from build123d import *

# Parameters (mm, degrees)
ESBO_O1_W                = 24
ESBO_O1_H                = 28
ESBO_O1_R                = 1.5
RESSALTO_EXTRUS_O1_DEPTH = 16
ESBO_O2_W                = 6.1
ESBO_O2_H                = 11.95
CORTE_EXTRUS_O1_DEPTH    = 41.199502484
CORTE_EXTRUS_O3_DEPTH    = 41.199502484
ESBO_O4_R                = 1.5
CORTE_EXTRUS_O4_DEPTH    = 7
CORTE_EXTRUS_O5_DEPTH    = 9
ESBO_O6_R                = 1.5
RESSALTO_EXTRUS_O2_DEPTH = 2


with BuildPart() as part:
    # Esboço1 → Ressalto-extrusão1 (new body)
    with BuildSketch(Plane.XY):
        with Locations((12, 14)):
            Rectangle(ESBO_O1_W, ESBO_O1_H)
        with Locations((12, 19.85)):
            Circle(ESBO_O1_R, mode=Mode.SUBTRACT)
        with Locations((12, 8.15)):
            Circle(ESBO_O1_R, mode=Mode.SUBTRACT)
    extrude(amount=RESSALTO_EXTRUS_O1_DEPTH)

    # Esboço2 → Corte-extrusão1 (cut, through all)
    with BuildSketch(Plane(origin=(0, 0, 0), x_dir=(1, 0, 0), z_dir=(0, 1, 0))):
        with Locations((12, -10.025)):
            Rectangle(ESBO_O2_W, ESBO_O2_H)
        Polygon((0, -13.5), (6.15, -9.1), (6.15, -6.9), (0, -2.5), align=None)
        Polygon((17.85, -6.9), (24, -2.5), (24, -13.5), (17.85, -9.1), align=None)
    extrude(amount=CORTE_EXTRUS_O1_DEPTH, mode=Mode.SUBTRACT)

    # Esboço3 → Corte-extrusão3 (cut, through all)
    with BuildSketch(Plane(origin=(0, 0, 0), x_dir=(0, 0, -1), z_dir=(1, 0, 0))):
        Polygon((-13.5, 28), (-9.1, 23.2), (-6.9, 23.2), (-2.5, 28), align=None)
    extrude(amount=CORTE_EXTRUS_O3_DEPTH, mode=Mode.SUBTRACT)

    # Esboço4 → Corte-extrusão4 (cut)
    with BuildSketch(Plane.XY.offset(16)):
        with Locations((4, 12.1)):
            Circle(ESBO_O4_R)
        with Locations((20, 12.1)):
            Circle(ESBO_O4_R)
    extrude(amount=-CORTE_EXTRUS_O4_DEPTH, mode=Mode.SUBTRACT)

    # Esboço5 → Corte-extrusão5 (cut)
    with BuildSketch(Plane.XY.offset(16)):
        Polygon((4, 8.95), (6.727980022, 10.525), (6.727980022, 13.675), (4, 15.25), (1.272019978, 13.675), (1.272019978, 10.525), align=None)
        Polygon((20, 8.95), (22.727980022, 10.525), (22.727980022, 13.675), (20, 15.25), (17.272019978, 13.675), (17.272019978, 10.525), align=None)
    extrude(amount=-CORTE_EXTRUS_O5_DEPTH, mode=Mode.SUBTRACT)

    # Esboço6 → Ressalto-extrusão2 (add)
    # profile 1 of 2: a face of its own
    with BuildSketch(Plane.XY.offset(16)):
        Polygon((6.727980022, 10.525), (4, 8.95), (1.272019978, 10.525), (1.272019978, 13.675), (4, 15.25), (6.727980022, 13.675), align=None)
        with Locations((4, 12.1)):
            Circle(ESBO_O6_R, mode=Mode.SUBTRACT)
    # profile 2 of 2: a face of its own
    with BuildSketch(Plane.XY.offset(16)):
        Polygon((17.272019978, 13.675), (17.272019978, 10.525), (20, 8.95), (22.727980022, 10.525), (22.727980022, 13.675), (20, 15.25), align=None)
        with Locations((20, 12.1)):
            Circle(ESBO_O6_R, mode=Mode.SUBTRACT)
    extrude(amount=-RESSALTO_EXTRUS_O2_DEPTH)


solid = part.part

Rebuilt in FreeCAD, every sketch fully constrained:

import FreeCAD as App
import Part
import Sketcher
Q = App.Units.Quantity

doc = App.newDocument("Part")
params = doc.addObject("Spreadsheet::Sheet", "Params")
for row, (alias, value) in enumerate([
    ("sketch1_diameter", "3 mm"),
    ("sketch1_width", "24 mm"),
    ("sketch1_height", "28 mm"),
    ("pad1_length", "16 mm"),
    ("sketch2_height", "11 mm"),
    ("sketch2_width", "6.1 mm"),
    ("sketch2_height2", "2.2 mm"),
    ("sketch2_height3", "11.95 mm"),
    ("sketch3_height", "11 mm"),
    ("sketch3_height2", "2.2 mm"),
    ("sketch4_diameter", "3 mm"),
    ("pocket3_length", "7 mm"),
    ("sketch5_height", "3.15 mm"),
    ("pocket4_length", "9 mm"),
    ("sketch6_diameter", "3 mm"),
    ("sketch6_height", "3.15 mm"),
    ("pad2_length", "2 mm"),
], start=1):
    params.set(f"A{row}", alias)
    params.set(f"B{row}", "=" + value)
    params.setAlias(f"B{row}", alias)

body = doc.addObject("PartDesign::Body", "Body")

# Sketch on XY plane
sketch1 = body.newObject("Sketcher::SketchObject", "Sketch")
sketch1.AttachmentSupport = (doc.getObject("XY_Plane"), [""])
sketch1.MapMode = "FlatFace"
sketch1.addGeometry([
    Part.LineSegment(App.Vector(0, 28, 0), App.Vector(0, 0, 0)),  # 0
    Part.LineSegment(App.Vector(0, 0, 0), App.Vector(24, 0, 0)),  # 1
    Part.LineSegment(App.Vector(24, 0, 0), App.Vector(24, 28, 0)),  # 2
    Part.LineSegment(App.Vector(24, 28, 0), App.Vector(0, 28, 0)),  # 3
    Part.Circle(App.Vector(12, 8.2, 0), App.Vector(0, 0, 1), 1.5),  # 4
    Part.Circle(App.Vector(12, 19.9, 0), App.Vector(0, 0, 1), 1.5),  # 5
], False)
sketch1.addConstraint([
    Sketcher.Constraint("Coincident", 0, 2, 1, 1),
    Sketcher.Constraint("Coincident", 1, 2, 2, 1),
    Sketcher.Constraint("Coincident", 2, 2, 3, 1),
    Sketcher.Constraint("Coincident", 3, 2, 0, 1),
    Sketcher.Constraint("Vertical", 0),
    Sketcher.Constraint("Horizontal", 1),
    Sketcher.Constraint("Vertical", 2),
    Sketcher.Constraint("Horizontal", 3),
    Sketcher.Constraint("Coincident", 0, 2, -1, 1),
    Sketcher.Constraint("Equal", 4, 5),
    Sketcher.Constraint("Vertical", 4, 3, 5, 3),
    Sketcher.Constraint("Diameter", 4, Q("3 mm")),
    Sketcher.Constraint("DistanceX", 1, 1, 1, 2, Q("24 mm")),
    Sketcher.Constraint("DistanceY", 0, 2, 0, 1, Q("28 mm")),
    Sketcher.Constraint("DistanceX", -1, 1, 4, 3, Q("12 mm")),
    Sketcher.Constraint("DistanceY", 4, 3, 5, 3, Q("11.7 mm")),
    Sketcher.Constraint("DistanceY", -1, 1, 4, 3, Q("8.15 mm")),
])
sketch1.setExpression("Constraints[11]", "Params.sketch1_diameter")
sketch1.setExpression("Constraints[12]", "Params.sketch1_width")
sketch1.setExpression("Constraints[13]", "Params.sketch1_height")
pad1 = body.newObject("PartDesign::Pad", "Pad")
pad1.Profile = sketch1
pad1.setExpression("Length", "Params.pad1_length")

# Sketch on XZ plane
sketch2 = body.newObject("Sketcher::SketchObject", "Sketch001")
sketch2.AttachmentSupport = (doc.getObject("XZ_Plane"), [""])
sketch2.MapMode = "FlatFace"
sketch2.addGeometry([
    Part.LineSegment(App.Vector(8.9, 4, 0), App.Vector(8.9, 16, 0)),  # 0
    Part.LineSegment(App.Vector(8.9, 16, 0), App.Vector(15.1, 16, 0)),  # 1
    Part.LineSegment(App.Vector(15.1, 16, 0), App.Vector(15.1, 4, 0)),  # 2
    Part.LineSegment(App.Vector(15.1, 4, 0), App.Vector(8.9, 4, 0)),  # 3
    Part.LineSegment(App.Vector(0, 13.5, 0), App.Vector(6.2, 9.1, 0)),  # 4
    Part.LineSegment(App.Vector(6.2, 9.1, 0), App.Vector(6.2, 6.9, 0)),  # 5
    Part.LineSegment(App.Vector(6.2, 6.9, 0), App.Vector(0, 2.5, 0)),  # 6
    Part.LineSegment(App.Vector(0, 2.5, 0), App.Vector(0, 13.5, 0)),  # 7
    Part.LineSegment(App.Vector(24, 2.5, 0), App.Vector(17.9, 6.9, 0)),  # 8
    Part.LineSegment(App.Vector(17.9, 6.9, 0), App.Vector(17.9, 9.1, 0)),  # 9
    Part.LineSegment(App.Vector(17.9, 9.1, 0), App.Vector(24, 13.5, 0)),  # 10
    Part.LineSegment(App.Vector(24, 13.5, 0), App.Vector(24, 2.5, 0)),  # 11
], False)
sketch2.addConstraint([
    Sketcher.Constraint("Coincident", 0, 2, 1, 1),
    Sketcher.Constraint("Coincident", 1, 2, 2, 1),
    Sketcher.Constraint("Coincident", 2, 2, 3, 1),
    Sketcher.Constraint("Coincident", 3, 2, 0, 1),
    Sketcher.Constraint("Coincident", 4, 2, 5, 1),
    Sketcher.Constraint("Coincident", 5, 2, 6, 1),
    Sketcher.Constraint("Coincident", 6, 2, 7, 1),
    Sketcher.Constraint("Coincident", 7, 2, 4, 1),
    Sketcher.Constraint("Coincident", 8, 2, 9, 1),
    Sketcher.Constraint("Coincident", 9, 2, 10, 1),
    Sketcher.Constraint("Coincident", 10, 2, 11, 1),
    Sketcher.Constraint("Coincident", 11, 2, 8, 1),
    Sketcher.Constraint("Vertical", 0),
    Sketcher.Constraint("Horizontal", 1),
    Sketcher.Constraint("Vertical", 2),
    Sketcher.Constraint("Horizontal", 3),
    Sketcher.Constraint("Vertical", 5),
    Sketcher.Constraint("Vertical", 7),
    Sketcher.Constraint("Vertical", 9),
    Sketcher.Constraint("Vertical", 11),
    Sketcher.Constraint("PointOnObject", 6, 2, -2),
    Sketcher.Constraint("Parallel", 4, 8),
    Sketcher.Constraint("Parallel", 6, 10),
    Sketcher.Constraint("Horizontal", 5, 2, 8, 2),
    Sketcher.Constraint("Horizontal", 4, 2, 9, 2),
    Sketcher.Constraint("Horizontal", 7, 2, 10, 2),
    Sketcher.Constraint("Horizontal", 6, 2, 11, 2),
    Sketcher.Constraint("DistanceY", 7, 1, 7, 2, Q("11 mm")),
    Sketcher.Constraint("DistanceX", 1, 1, 1, 2, Q("6.1 mm")),
    Sketcher.Constraint("DistanceY", 5, 2, 5, 1, Q("2.2 mm")),
    Sketcher.Constraint("DistanceY", -1, 1, 0, 2, Q("16 mm")),
    Sketcher.Constraint("DistanceX", -1, 1, 10, 2, Q("24 mm")),
    Sketcher.Constraint("DistanceY", 0, 1, 0, 2, Q("11.95 mm")),
    Sketcher.Constraint("DistanceY", -1, 1, 4, 2, Q("9.1 mm")),
    Sketcher.Constraint("DistanceX", 4, 2, 3, 2, Q("2.8 mm")),
    Sketcher.Constraint("DistanceX", 2, 2, 8, 2, Q("2.8 mm")),
])
sketch2.setExpression("Constraints[27]", "Params.sketch2_height")
sketch2.setExpression("Constraints[28]", "Params.sketch2_width")
sketch2.setExpression("Constraints[29]", "Params.sketch2_height2")
sketch2.setExpression("Constraints[32]", "Params.sketch2_height3")
pocket1 = body.newObject("PartDesign::Pocket", "Pocket")
pocket1.Profile = sketch2
pocket1.Type = "ThroughAll"

# Sketch on YZ plane
sketch3 = body.newObject("Sketcher::SketchObject", "Sketch002")
sketch3.AttachmentSupport = (doc.getObject("YZ_Plane"), [""])
sketch3.MapMode = "FlatFace"
sketch3.addGeometry([
    Part.LineSegment(App.Vector(28, 13.5, 0), App.Vector(23.2, 9.1, 0)),
    Part.LineSegment(App.Vector(23.2, 9.1, 0), App.Vector(23.2, 6.9, 0)),
    Part.LineSegment(App.Vector(23.2, 6.9, 0), App.Vector(28, 2.5, 0)),
    Part.LineSegment(App.Vector(28, 2.5, 0), App.Vector(28, 13.5, 0)),
], False)
sketch3.addConstraint([
    Sketcher.Constraint("Coincident", 0, 2, 1, 1),
    Sketcher.Constraint("Coincident", 1, 2, 2, 1),
    Sketcher.Constraint("Coincident", 2, 2, 3, 1),
    Sketcher.Constraint("Coincident", 3, 2, 0, 1),
    Sketcher.Constraint("Vertical", 1),
    Sketcher.Constraint("Vertical", 3),
    Sketcher.Constraint("Equal", 0, 2),
    Sketcher.Constraint("DistanceY", 3, 1, 3, 2, Q("11 mm")),
    Sketcher.Constraint("DistanceY", 1, 2, 1, 1, Q("2.2 mm")),
    Sketcher.Constraint("DistanceX", -1, 1, 2, 2, Q("28 mm")),
    Sketcher.Constraint("DistanceX", -1, 1, 0, 2, Q("23.2 mm")),
    Sketcher.Constraint("DistanceY", -1, 1, 0, 2, Q("9.1 mm")),
])
sketch3.setExpression("Constraints[7]", "Params.sketch3_height")
sketch3.setExpression("Constraints[8]", "Params.sketch3_height2")
pocket2 = body.newObject("PartDesign::Pocket", "Pocket001")
pocket2.Profile = sketch3
pocket2.Type = "ThroughAll"
pocket2.Reversed = True

# Sketch on XY plane
sketch4 = body.newObject("Sketcher::SketchObject", "Sketch003")
sketch4.AttachmentSupport = (doc.getObject("XY_Plane"), [""])
sketch4.MapMode = "FlatFace"
sketch4.AttachmentOffset = App.Placement(App.Vector(0, 0, 16), App.Rotation())
sketch4.addGeometry([
    Part.Circle(App.Vector(4, 12.1, 0), App.Vector(0, 0, 1), 1.5),
    Part.Circle(App.Vector(20, 12.1, 0), App.Vector(0, 0, 1), 1.5),
], False)
sketch4.addConstraint([
    Sketcher.Constraint("Equal", 0, 1),
    Sketcher.Constraint("Horizontal", 0, 3, 1, 3),
    Sketcher.Constraint("Diameter", 0, Q("3 mm")),
    Sketcher.Constraint("DistanceX", -1, 1, 0, 3, Q("4 mm")),
    Sketcher.Constraint("DistanceX", -1, 1, 1, 3, Q("20 mm")),
    Sketcher.Constraint("DistanceY", -1, 1, 0, 3, Q("12.1 mm")),
])
sketch4.setExpression("Constraints[2]", "Params.sketch4_diameter")
pocket3 = body.newObject("PartDesign::Pocket", "Pocket002")
pocket3.Profile = sketch4
pocket3.setExpression("Length", "Params.pocket3_length")

# Sketch on XY plane
sketch5 = body.newObject("Sketcher::SketchObject", "Sketch004")
sketch5.AttachmentSupport = (doc.getObject("XY_Plane"), [""])
sketch5.MapMode = "FlatFace"
sketch5.AttachmentOffset = App.Placement(App.Vector(0, 0, 16), App.Rotation())
sketch5.addGeometry([
    Part.LineSegment(App.Vector(4, 8.9, 0), App.Vector(6.7, 10.5, 0)),  # 0
    Part.LineSegment(App.Vector(6.7, 10.5, 0), App.Vector(6.7, 13.7, 0)),  # 1
    Part.LineSegment(App.Vector(6.7, 13.7, 0), App.Vector(4, 15.2, 0)),  # 2
    Part.LineSegment(App.Vector(4, 15.2, 0), App.Vector(1.3, 13.7, 0)),  # 3
    Part.LineSegment(App.Vector(1.3, 13.7, 0), App.Vector(1.3, 10.5, 0)),  # 4
    Part.LineSegment(App.Vector(1.3, 10.5, 0), App.Vector(4, 8.9, 0)),  # 5
    Part.LineSegment(App.Vector(20, 8.9, 0), App.Vector(22.7, 10.5, 0)),  # 6
    Part.LineSegment(App.Vector(22.7, 10.5, 0), App.Vector(22.7, 13.7, 0)),  # 7
    Part.LineSegment(App.Vector(22.7, 13.7, 0), App.Vector(20, 15.2, 0)),  # 8
    Part.LineSegment(App.Vector(20, 15.2, 0), App.Vector(17.3, 13.7, 0)),  # 9
    Part.LineSegment(App.Vector(17.3, 13.7, 0), App.Vector(17.3, 10.5, 0)),  # 10
    Part.LineSegment(App.Vector(17.3, 10.5, 0), App.Vector(20, 8.9, 0)),  # 11
], False)
sketch5.addConstraint([
    Sketcher.Constraint("Coincident", 0, 2, 1, 1),
    Sketcher.Constraint("Coincident", 1, 2, 2, 1),
    Sketcher.Constraint("Coincident", 2, 2, 3, 1),
    Sketcher.Constraint("Coincident", 3, 2, 4, 1),
    Sketcher.Constraint("Coincident", 4, 2, 5, 1),
    Sketcher.Constraint("Coincident", 5, 2, 0, 1),
    Sketcher.Constraint("Coincident", 6, 2, 7, 1),
    Sketcher.Constraint("Coincident", 7, 2, 8, 1),
    Sketcher.Constraint("Coincident", 8, 2, 9, 1),
    Sketcher.Constraint("Coincident", 9, 2, 10, 1),
    Sketcher.Constraint("Coincident", 10, 2, 11, 1),
    Sketcher.Constraint("Coincident", 11, 2, 6, 1),
    Sketcher.Constraint("Vertical", 1),
    Sketcher.Constraint("Vertical", 4),
    Sketcher.Constraint("Vertical", 7),
    Sketcher.Constraint("Vertical", 10),
    Sketcher.Constraint("Parallel", 0, 3),
    Sketcher.Constraint("Parallel", 2, 5),
    Sketcher.Constraint("Parallel", 3, 6),
    Sketcher.Constraint("Parallel", 5, 8),
    Sketcher.Constraint("Parallel", 6, 9),
    Sketcher.Constraint("Parallel", 8, 11),
    Sketcher.Constraint("Horizontal", 1, 2, 3, 2),
    Sketcher.Constraint("Horizontal", 0, 2, 4, 2),
    Sketcher.Constraint("Horizontal", 4, 2, 6, 2),
    Sketcher.Constraint("Horizontal", 3, 2, 7, 2),
    Sketcher.Constraint("Horizontal", 2, 2, 8, 2),
    Sketcher.Constraint("Horizontal", 7, 2, 9, 2),
    Sketcher.Constraint("Horizontal", 6, 2, 10, 2),
    Sketcher.Constraint("Vertical", 2, 2, 5, 2),
    Sketcher.Constraint("Angle", 0, Q("30 deg")),
    Sketcher.Constraint("DistanceX", -1, 1, 2, 2, Q("4 mm")),
    Sketcher.Constraint("DistanceX", -1, 1, 8, 2, Q("20 mm")),
    Sketcher.Constraint("DistanceY", 1, 1, 1, 2, Q("3.15 mm")),
    Sketcher.Constraint("DistanceY", 5, 2, 2, 2, Q("6.3 mm")),
    Sketcher.Constraint("DistanceY", -1, 1, 2, 2, Q("15.25 mm")),
])
sketch5.setExpression("Constraints[33]", "Params.sketch5_height")
pocket4 = body.newObject("PartDesign::Pocket", "Pocket003")
pocket4.Profile = sketch5
pocket4.setExpression("Length", "Params.pocket4_length")

# Sketch on XY plane
sketch6 = body.newObject("Sketcher::SketchObject", "Sketch005")
sketch6.AttachmentSupport = (doc.getObject("XY_Plane"), [""])
sketch6.MapMode = "FlatFace"
sketch6.AttachmentOffset = App.Placement(App.Vector(0, 0, 16), App.Rotation())
sketch6.addGeometry([
    Part.LineSegment(App.Vector(4, 8.9, 0), App.Vector(6.7, 10.5, 0)),  # 0
    Part.LineSegment(App.Vector(6.7, 10.5, 0), App.Vector(6.7, 13.7, 0)),  # 1
    Part.LineSegment(App.Vector(6.7, 13.7, 0), App.Vector(4, 15.2, 0)),  # 2
    Part.LineSegment(App.Vector(4, 15.2, 0), App.Vector(1.3, 13.7, 0)),  # 3
    Part.LineSegment(App.Vector(1.3, 13.7, 0), App.Vector(1.3, 10.5, 0)),  # 4
    Part.LineSegment(App.Vector(1.3, 10.5, 0), App.Vector(4, 8.9, 0)),  # 5
    Part.Circle(App.Vector(4, 12.1, 0), App.Vector(0, 0, 1), 1.5),  # 6
    Part.LineSegment(App.Vector(17.3, 13.7, 0), App.Vector(17.3, 10.5, 0)),  # 7
    Part.LineSegment(App.Vector(17.3, 10.5, 0), App.Vector(20, 8.9, 0)),  # 8
    Part.LineSegment(App.Vector(20, 8.9, 0), App.Vector(22.7, 10.5, 0)),  # 9
    Part.LineSegment(App.Vector(22.7, 10.5, 0), App.Vector(22.7, 13.7, 0)),  # 10
    Part.LineSegment(App.Vector(22.7, 13.7, 0), App.Vector(20, 15.2, 0)),  # 11
    Part.LineSegment(App.Vector(20, 15.2, 0), App.Vector(17.3, 13.7, 0)),  # 12
    Part.Circle(App.Vector(20, 12.1, 0), App.Vector(0, 0, 1), 1.5),  # 13
], False)
sketch6.addConstraint([
    Sketcher.Constraint("Coincident", 0, 2, 1, 1),
    Sketcher.Constraint("Coincident", 1, 2, 2, 1),
    Sketcher.Constraint("Coincident", 2, 2, 3, 1),
    Sketcher.Constraint("Coincident", 3, 2, 4, 1),
    Sketcher.Constraint("Coincident", 4, 2, 5, 1),
    Sketcher.Constraint("Coincident", 5, 2, 0, 1),
    Sketcher.Constraint("Coincident", 7, 2, 8, 1),
    Sketcher.Constraint("Coincident", 8, 2, 9, 1),
    Sketcher.Constraint("Coincident", 9, 2, 10, 1),
    Sketcher.Constraint("Coincident", 10, 2, 11, 1),
    Sketcher.Constraint("Coincident", 11, 2, 12, 1),
    Sketcher.Constraint("Coincident", 12, 2, 7, 1),
    Sketcher.Constraint("Vertical", 1),
    Sketcher.Constraint("Vertical", 4),
    Sketcher.Constraint("Vertical", 7),
    Sketcher.Constraint("Vertical", 10),
    Sketcher.Constraint("Equal", 6, 13),
    Sketcher.Constraint("Parallel", 0, 3),
    Sketcher.Constraint("Parallel", 2, 5),
    Sketcher.Constraint("Parallel", 5, 8),
    Sketcher.Constraint("Parallel", 3, 9),
    Sketcher.Constraint("Parallel", 8, 11),
    Sketcher.Constraint("Parallel", 9, 12),
    Sketcher.Constraint("Horizontal", 6, 3, 13, 3),
    Sketcher.Constraint("Horizontal", 1, 2, 3, 2),
    Sketcher.Constraint("Horizontal", 0, 2, 4, 2),
    Sketcher.Constraint("Horizontal", 4, 2, 7, 2),
    Sketcher.Constraint("Horizontal", 5, 2, 8, 2),
    Sketcher.Constraint("Horizontal", 7, 2, 9, 2),
    Sketcher.Constraint("Horizontal", 3, 2, 10, 2),
    Sketcher.Constraint("Horizontal", 2, 2, 11, 2),
    Sketcher.Constraint("Vertical", 6, 3, 2, 2),
    Sketcher.Constraint("Vertical", 2, 2, 5, 2),
    Sketcher.Constraint("Vertical", 13, 3, 8, 2),
    Sketcher.Constraint("Diameter", 6, Q("3 mm")),
    Sketcher.Constraint("Angle", 0, Q("30 deg")),
    Sketcher.Constraint("DistanceX", -1, 1, 6, 3, Q("4 mm")),
    Sketcher.Constraint("DistanceX", -1, 1, 13, 3, Q("20 mm")),
    Sketcher.Constraint("DistanceY", 1, 1, 1, 2, Q("3.15 mm")),
    Sketcher.Constraint("DistanceY", -1, 1, 6, 3, Q("12.1 mm")),
    Sketcher.Constraint("DistanceY", 8, 2, 11, 2, Q("6.3 mm")),
    Sketcher.Constraint("DistanceY", -1, 1, 2, 2, Q("15.25 mm")),
])
sketch6.setExpression("Constraints[34]", "Params.sketch6_diameter")
sketch6.setExpression("Constraints[38]", "Params.sketch6_height")
pad2 = body.newObject("PartDesign::Pad", "Pad001")
pad2.Profile = sketch6
pad2.setExpression("Length", "Params.pad2_length")
pad2.Reversed = True

doc.recompute()
